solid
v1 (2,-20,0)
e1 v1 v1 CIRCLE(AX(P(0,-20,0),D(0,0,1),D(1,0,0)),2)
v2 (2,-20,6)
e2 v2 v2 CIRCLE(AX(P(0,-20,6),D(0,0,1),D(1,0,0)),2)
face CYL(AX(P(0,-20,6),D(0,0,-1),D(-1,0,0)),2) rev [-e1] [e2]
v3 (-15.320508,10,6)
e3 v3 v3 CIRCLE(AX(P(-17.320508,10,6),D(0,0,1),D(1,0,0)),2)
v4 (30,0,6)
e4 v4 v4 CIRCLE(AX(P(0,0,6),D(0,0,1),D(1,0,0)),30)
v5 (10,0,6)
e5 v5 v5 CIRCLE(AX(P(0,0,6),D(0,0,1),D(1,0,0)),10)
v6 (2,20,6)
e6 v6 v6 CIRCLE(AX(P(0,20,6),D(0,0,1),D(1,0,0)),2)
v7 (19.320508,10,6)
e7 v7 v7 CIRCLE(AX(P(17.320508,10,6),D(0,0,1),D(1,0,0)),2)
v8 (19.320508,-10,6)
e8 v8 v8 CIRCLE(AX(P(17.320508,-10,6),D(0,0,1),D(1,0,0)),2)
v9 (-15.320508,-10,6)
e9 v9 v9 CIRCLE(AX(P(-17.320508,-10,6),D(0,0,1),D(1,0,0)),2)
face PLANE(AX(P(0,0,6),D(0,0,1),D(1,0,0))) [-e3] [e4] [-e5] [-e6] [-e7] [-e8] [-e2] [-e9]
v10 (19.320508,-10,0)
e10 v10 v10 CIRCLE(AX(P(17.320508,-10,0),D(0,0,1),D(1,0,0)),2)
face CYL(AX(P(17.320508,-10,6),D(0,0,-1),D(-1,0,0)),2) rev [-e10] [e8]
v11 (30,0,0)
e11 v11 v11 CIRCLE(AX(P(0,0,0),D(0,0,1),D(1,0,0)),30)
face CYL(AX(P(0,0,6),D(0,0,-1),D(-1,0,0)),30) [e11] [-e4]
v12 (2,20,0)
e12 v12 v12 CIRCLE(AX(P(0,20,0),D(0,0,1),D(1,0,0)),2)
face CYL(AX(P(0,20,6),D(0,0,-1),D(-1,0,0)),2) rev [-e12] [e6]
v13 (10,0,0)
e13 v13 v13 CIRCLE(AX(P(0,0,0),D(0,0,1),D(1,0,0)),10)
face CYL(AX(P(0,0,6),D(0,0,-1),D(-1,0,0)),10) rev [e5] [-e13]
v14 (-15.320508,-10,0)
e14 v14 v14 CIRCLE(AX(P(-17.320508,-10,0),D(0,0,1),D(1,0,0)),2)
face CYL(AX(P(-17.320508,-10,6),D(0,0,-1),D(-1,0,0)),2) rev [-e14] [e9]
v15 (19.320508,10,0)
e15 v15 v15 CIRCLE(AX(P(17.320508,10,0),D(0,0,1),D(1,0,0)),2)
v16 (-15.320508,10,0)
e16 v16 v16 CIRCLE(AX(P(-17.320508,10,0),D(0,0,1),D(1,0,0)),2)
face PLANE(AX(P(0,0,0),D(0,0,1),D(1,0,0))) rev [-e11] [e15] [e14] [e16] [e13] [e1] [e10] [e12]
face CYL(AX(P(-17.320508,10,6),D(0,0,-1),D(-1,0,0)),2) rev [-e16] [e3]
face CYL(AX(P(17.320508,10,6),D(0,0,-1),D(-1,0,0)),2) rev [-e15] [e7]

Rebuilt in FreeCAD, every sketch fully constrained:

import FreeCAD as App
import Part
import Sketcher

doc = App.newDocument("Part")
body = doc.addObject("PartDesign::Body", "Body")

# Sketch on XY plane
sketch1 = body.newObject("Sketcher::SketchObject", "Sketch")
sketch1.AttachmentSupport = (doc.getObject("XY_Plane"), [""])
sketch1.MapMode = "FlatFace"
sketch1.addGeometry(Part.Circle(App.Vector(0, 0, 0), App.Vector(0, 0, 1), 30), False)
sketch1.addGeometry(Part.Circle(App.Vector(-17.3, -10, 0), App.Vector(0, 0, 1), 2), False)
sketch1.addGeometry(Part.Circle(App.Vector(0, -20, 0), App.Vector(0, 0, 1), 2), False)
sketch1.addGeometry(Part.Circle(App.Vector(17.3, -10, 0), App.Vector(0, 0, 1), 2), False)
sketch1.addGeometry(Part.Circle(App.Vector(-17.3, 10, 0), App.Vector(0, 0, 1), 2), False)
sketch1.addGeometry(Part.Circle(App.Vector(0, 0, 0), App.Vector(0, 0, 1), 10), False)
sketch1.addGeometry(Part.Circle(App.Vector(17.3, 10, 0), App.Vector(0, 0, 1), 2), False)
sketch1.addGeometry(Part.Circle(App.Vector(0, 20, 0), App.Vector(0, 0, 1), 2), False)
sketch1.addConstraint(Sketcher.Constraint("Coincident", 0, 3, -1, 1))
sketch1.addConstraint(Sketcher.Constraint("Coincident", 5, 3, -1, 1))
sketch1.addConstraint(Sketcher.Constraint("Equal", 1, 2))
sketch1.addConstraint(Sketcher.Constraint("Equal", 2, 3))
sketch1.addConstraint(Sketcher.Constraint("Equal", 3, 4))
sketch1.addConstraint(Sketcher.Constraint("Equal", 4, 6))
sketch1.addConstraint(Sketcher.Constraint("Equal", 6, 7))
sketch1.addConstraint(Sketcher.Constraint("Symmetric", 3, 3, 4, 3, -1, 1))
sketch1.addConstraint(Sketcher.Constraint("Symmetric", 1, 3, 6, 3, -1, 1))
sketch1.addConstraint(Sketcher.Constraint("Symmetric", 2, 3, 7, 3, -1, 1))
sketch1.addConstraint(Sketcher.Constraint("Symmetric", 1, 3, 3, 3, -2))
sketch1.addConstraint(Sketcher.Constraint("PointOnObject", 2, 3, -2))
sketch1.addConstraint(Sketcher.Constraint("Diameter", 0, 60.0))
sketch1.addConstraint(Sketcher.Constraint("Diameter", 1, 4.0))
sketch1.addConstraint(Sketcher.Constraint("Diameter", 5, 20.0))
sketch1.addConstraint(Sketcher.Constraint("DistanceY", 1, 3, -1, 1, 10.0))
sketch1.addConstraint(Sketcher.Constraint("DistanceY", 2, 3, -1, 1, 20.0))
sketch1.addConstraint(Sketcher.Constraint("DistanceX", 1, 3, -1, 1, 17.320508))
pad1 = body.newObject("PartDesign::Pad", "Pad")
pad1.Profile = sketch1
pad1.Length = 6

doc.recompute()
